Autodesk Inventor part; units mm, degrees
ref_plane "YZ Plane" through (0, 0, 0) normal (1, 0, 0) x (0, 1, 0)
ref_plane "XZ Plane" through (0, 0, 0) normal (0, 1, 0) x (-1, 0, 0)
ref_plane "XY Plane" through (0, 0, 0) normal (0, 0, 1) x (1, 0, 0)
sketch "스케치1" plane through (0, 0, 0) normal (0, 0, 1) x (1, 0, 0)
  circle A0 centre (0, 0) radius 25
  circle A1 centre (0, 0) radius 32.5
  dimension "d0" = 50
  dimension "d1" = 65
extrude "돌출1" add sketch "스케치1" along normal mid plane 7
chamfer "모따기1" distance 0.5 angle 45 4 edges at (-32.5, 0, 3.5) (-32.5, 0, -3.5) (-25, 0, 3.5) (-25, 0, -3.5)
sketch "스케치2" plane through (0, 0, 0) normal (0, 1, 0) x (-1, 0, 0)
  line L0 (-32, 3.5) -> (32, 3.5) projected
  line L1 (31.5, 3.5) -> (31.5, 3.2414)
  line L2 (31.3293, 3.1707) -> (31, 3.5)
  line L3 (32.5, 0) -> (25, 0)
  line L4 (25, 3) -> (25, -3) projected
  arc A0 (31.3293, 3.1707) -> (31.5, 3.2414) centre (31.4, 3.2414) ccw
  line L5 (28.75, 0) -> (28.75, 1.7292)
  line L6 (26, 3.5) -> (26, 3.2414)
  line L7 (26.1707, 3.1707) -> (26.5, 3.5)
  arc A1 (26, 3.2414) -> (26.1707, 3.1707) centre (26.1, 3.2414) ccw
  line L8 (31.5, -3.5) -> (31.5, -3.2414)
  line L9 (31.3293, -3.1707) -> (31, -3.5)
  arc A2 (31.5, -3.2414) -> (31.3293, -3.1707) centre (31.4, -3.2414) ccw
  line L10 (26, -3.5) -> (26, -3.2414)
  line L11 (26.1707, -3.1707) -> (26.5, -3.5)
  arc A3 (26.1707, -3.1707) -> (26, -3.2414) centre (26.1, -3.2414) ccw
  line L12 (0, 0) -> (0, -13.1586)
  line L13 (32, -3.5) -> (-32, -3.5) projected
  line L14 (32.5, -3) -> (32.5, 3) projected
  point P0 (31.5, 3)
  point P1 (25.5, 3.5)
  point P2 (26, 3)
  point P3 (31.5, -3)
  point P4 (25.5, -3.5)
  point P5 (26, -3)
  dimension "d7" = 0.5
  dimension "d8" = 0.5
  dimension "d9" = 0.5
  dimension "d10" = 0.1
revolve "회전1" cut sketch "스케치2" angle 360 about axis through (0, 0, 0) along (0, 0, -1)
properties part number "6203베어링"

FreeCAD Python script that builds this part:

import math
import FreeCAD as App
import Part
import Sketcher


def edges_at(feature, points):
    """Names of the edges that pass closest to the given points."""
    edges = feature.Shape.Edges
    near = lambda p: min(range(len(edges)), key=lambda i: edges[i].distToShape(Part.Vertex(*p))[0])
    return sorted({f"Edge{near(p) + 1}" for p in points})

doc = App.newDocument("Part")
params = doc.addObject("Spreadsheet::Sheet", "Params")
for row, (alias, value) in enumerate([
    ("sketch1_diameter", "65 mm"),
    ("sketch1_diameter2", "50 mm"),
    ("pad1_length", "7 mm"),
    ("chamfer_size", "0.5 mm"),
    ("sketch2_radius", "0.1 mm"),
    ("sketch2_width", "0.5 mm"),
    ("groove_angle", "360 deg"),
], start=1):
    params.set(f"A{row}", alias)
    params.set(f"B{row}", "=" + value)
    params.setAlias(f"B{row}", alias)

body = doc.addObject("PartDesign::Body", "Body")

sketch1 = body.newObject("Sketcher::SketchObject", "Sketch")
sketch1.AttachmentSupport = (doc.getObject("XY_Plane"), [""])
sketch1.MapMode = "FlatFace"
sketch1.addGeometry([
    Part.Circle(App.Vector(0, 0, 0), App.Vector(0, 0, 1), 32.5),
    Part.Circle(App.Vector(0, 0, 0), App.Vector(0, 0, 1), 25),
], False)
sketch1.addConstraint([
    Sketcher.Constraint("Coincident", 0, 3, -1, 1),
    Sketcher.Constraint("Coincident", 1, 3, -1, 1),
    Sketcher.Constraint("Diameter", 0, 65.0),
    Sketcher.Constraint("Diameter", 1, 50.0),
])
sketch1.setExpression("Constraints[2]", "Params.sketch1_diameter")
sketch1.setExpression("Constraints[3]", "Params.sketch1_diameter2")
pad1 = body.newObject("PartDesign::Pad", "Pad")
pad1.Profile = sketch1
pad1.setExpression("Length", "Params.pad1_length")
pad1.Midplane = True
doc.recompute()

chamfer = body.newObject("PartDesign::Chamfer", "Chamfer")
chamfer.Base = (pad1, edges_at(pad1, [
    (-32.5, 0, 3.5),
    (-32.5, 0, -3.5),
    (-25, 0, 3.5),
    (-25, 0, -3.5),
]))
chamfer.setExpression("Size", "Params.chamfer_size")

sketch2 = body.newObject("Sketcher::SketchObject", "Sketch001")
sketch2.AttachmentSupport = (doc.getObject("XZ_Plane"), [""])
sketch2.MapMode = "FlatFace"
sketch2.addGeometry([
    Part.LineSegment(App.Vector(-31.5, 3.5, 0), App.Vector(-31, 3.5, 0)),
    Part.LineSegment(App.Vector(-31, 3.5, 0), App.Vector(-31.3293, 3.1707, 0)),
    Part.ArcOfCircle(Part.Circle(App.Vector(-31.4, 3.2414, 0), App.Vector(0, 0, 1), 0.099985), math.radians(180), math.radians(315)),
    Part.LineSegment(App.Vector(-31.5, 3.2414, 0), App.Vector(-31.5, 3.5, 0)),
    Part.LineSegment(App.Vector(-26.5, 3.5, 0), App.Vector(-26, 3.5, 0)),
    Part.LineSegment(App.Vector(-26, 3.5, 0), App.Vector(-26, 3.2414, 0)),
    Part.ArcOfCircle(Part.Circle(App.Vector(-26.1, 3.2414, 0), App.Vector(0, 0, 1), 0.1), math.radians(-135), math.radians(0)),
    Part.LineSegment(App.Vector(-26.1707, 3.1707, 0), App.Vector(-26.5, 3.5, 0)),
    Part.LineSegment(App.Vector(-31, -3.5, 0), App.Vector(-31.5, -3.5, 0)),
    Part.LineSegment(App.Vector(-31.5, -3.5, 0), App.Vector(-31.5, -3.2414, 0)),
    Part.ArcOfCircle(Part.Circle(App.Vector(-31.4, -3.2414, 0), App.Vector(0, 0, 1), 0.1), math.radians(45), math.radians(180)),
    Part.LineSegment(App.Vector(-31.3293, -3.1707, 0), App.Vector(-31, -3.5, 0)),
    Part.LineSegment(App.Vector(-26, -3.5, 0), App.Vector(-26.5, -3.5, 0)),
    Part.LineSegment(App.Vector(-26.5, -3.5, 0), App.Vector(-26.1707, -3.1707, 0)),
    Part.ArcOfCircle(Part.Circle(App.Vector(-26.1, -3.2414, 0), App.Vector(0, 0, 1), 0.099985), math.radians(0), math.radians(135)),
    Part.LineSegment(App.Vector(-26, -3.2414, 0), App.Vector(-26, -3.5, 0)),
], False)
sketch2.addConstraint([
    Sketcher.Constraint("Coincident", 0, 2, 1, 1),
    Sketcher.Constraint("Tangent", 1, 2, 2, 2),
    Sketcher.Constraint("Tangent", 2, 1, 3, 1),
    Sketcher.Constraint("Coincident", 3, 2, 0, 1),
    Sketcher.Constraint("Coincident", 4, 2, 5, 1),
    Sketcher.Constraint("Tangent", 5, 2, 6, 2),
    Sketcher.Constraint("Tangent", 6, 1, 7, 1),
    Sketcher.Constraint("Coincident", 7, 2, 4, 1),
    Sketcher.Constraint("Coincident", 8, 2, 9, 1),
    Sketcher.Constraint("Tangent", 9, 2, 10, 2),
    Sketcher.Constraint("Tangent", 10, 1, 11, 1),
    Sketcher.Constraint("Coincident", 11, 2, 8, 1),
    Sketcher.Constraint("Coincident", 12, 2, 13, 1),
    Sketcher.Constraint("Tangent", 13, 2, 14, 2),
    Sketcher.Constraint("Tangent", 14, 1, 15, 1),
    Sketcher.Constraint("Coincident", 15, 2, 12, 1),
    Sketcher.Constraint("Horizontal", 0),
    Sketcher.Constraint("Vertical", 3),
    Sketcher.Constraint("Horizontal", 4),
    Sketcher.Constraint("Vertical", 5),
    Sketcher.Constraint("Horizontal", 8),
    Sketcher.Constraint("Vertical", 9),
    Sketcher.Constraint("Horizontal", 12),
    Sketcher.Constraint("Vertical", 15),
    Sketcher.Constraint("Equal", 2, 6),
    Sketcher.Constraint("Equal", 6, 10),
    Sketcher.Constraint("Equal", 10, 14),
    Sketcher.Constraint("Symmetric", 2, 3, 10, 3, -1),
    Sketcher.Constraint("Symmetric", 6, 3, 14, 3, -1),
    Sketcher.Constraint("Symmetric", 0, 2, 11, 2, -1),
    Sketcher.Constraint("Symmetric", 7, 2, 12, 2, -1),
    Sketcher.Constraint("Perpendicular", 1, 7),
    Sketcher.Constraint("Parallel", 7, 11),
    Sketcher.Constraint("Horizontal", 2, 3, 6, 3),
    Sketcher.Constraint("Horizontal", 3, 2, 4, 2),
    Sketcher.Constraint("Radius", 2, 0.1),
    Sketcher.Constraint("DistanceX", 0, 1, 0, 2, 0.5),
    Sketcher.Constraint("DistanceX", 0, 2, -1, 1, 31.0),
    Sketcher.Constraint("DistanceX", 4, 2, -1, 1, 26.0),
    Sketcher.Constraint("DistanceY", -1, 1, 0, 2, 3.5),
])
sketch2.setExpression("Constraints[35]", "Params.sketch2_radius")
sketch2.setExpression("Constraints[36]", "Params.sketch2_width")
groove = body.newObject("PartDesign::Groove", "Groove")
groove.Profile = sketch2
groove.ReferenceAxis = (sketch2, ["V_Axis"])
groove.setExpression("Angle", "Params.groove_angle")

doc.recompute()
